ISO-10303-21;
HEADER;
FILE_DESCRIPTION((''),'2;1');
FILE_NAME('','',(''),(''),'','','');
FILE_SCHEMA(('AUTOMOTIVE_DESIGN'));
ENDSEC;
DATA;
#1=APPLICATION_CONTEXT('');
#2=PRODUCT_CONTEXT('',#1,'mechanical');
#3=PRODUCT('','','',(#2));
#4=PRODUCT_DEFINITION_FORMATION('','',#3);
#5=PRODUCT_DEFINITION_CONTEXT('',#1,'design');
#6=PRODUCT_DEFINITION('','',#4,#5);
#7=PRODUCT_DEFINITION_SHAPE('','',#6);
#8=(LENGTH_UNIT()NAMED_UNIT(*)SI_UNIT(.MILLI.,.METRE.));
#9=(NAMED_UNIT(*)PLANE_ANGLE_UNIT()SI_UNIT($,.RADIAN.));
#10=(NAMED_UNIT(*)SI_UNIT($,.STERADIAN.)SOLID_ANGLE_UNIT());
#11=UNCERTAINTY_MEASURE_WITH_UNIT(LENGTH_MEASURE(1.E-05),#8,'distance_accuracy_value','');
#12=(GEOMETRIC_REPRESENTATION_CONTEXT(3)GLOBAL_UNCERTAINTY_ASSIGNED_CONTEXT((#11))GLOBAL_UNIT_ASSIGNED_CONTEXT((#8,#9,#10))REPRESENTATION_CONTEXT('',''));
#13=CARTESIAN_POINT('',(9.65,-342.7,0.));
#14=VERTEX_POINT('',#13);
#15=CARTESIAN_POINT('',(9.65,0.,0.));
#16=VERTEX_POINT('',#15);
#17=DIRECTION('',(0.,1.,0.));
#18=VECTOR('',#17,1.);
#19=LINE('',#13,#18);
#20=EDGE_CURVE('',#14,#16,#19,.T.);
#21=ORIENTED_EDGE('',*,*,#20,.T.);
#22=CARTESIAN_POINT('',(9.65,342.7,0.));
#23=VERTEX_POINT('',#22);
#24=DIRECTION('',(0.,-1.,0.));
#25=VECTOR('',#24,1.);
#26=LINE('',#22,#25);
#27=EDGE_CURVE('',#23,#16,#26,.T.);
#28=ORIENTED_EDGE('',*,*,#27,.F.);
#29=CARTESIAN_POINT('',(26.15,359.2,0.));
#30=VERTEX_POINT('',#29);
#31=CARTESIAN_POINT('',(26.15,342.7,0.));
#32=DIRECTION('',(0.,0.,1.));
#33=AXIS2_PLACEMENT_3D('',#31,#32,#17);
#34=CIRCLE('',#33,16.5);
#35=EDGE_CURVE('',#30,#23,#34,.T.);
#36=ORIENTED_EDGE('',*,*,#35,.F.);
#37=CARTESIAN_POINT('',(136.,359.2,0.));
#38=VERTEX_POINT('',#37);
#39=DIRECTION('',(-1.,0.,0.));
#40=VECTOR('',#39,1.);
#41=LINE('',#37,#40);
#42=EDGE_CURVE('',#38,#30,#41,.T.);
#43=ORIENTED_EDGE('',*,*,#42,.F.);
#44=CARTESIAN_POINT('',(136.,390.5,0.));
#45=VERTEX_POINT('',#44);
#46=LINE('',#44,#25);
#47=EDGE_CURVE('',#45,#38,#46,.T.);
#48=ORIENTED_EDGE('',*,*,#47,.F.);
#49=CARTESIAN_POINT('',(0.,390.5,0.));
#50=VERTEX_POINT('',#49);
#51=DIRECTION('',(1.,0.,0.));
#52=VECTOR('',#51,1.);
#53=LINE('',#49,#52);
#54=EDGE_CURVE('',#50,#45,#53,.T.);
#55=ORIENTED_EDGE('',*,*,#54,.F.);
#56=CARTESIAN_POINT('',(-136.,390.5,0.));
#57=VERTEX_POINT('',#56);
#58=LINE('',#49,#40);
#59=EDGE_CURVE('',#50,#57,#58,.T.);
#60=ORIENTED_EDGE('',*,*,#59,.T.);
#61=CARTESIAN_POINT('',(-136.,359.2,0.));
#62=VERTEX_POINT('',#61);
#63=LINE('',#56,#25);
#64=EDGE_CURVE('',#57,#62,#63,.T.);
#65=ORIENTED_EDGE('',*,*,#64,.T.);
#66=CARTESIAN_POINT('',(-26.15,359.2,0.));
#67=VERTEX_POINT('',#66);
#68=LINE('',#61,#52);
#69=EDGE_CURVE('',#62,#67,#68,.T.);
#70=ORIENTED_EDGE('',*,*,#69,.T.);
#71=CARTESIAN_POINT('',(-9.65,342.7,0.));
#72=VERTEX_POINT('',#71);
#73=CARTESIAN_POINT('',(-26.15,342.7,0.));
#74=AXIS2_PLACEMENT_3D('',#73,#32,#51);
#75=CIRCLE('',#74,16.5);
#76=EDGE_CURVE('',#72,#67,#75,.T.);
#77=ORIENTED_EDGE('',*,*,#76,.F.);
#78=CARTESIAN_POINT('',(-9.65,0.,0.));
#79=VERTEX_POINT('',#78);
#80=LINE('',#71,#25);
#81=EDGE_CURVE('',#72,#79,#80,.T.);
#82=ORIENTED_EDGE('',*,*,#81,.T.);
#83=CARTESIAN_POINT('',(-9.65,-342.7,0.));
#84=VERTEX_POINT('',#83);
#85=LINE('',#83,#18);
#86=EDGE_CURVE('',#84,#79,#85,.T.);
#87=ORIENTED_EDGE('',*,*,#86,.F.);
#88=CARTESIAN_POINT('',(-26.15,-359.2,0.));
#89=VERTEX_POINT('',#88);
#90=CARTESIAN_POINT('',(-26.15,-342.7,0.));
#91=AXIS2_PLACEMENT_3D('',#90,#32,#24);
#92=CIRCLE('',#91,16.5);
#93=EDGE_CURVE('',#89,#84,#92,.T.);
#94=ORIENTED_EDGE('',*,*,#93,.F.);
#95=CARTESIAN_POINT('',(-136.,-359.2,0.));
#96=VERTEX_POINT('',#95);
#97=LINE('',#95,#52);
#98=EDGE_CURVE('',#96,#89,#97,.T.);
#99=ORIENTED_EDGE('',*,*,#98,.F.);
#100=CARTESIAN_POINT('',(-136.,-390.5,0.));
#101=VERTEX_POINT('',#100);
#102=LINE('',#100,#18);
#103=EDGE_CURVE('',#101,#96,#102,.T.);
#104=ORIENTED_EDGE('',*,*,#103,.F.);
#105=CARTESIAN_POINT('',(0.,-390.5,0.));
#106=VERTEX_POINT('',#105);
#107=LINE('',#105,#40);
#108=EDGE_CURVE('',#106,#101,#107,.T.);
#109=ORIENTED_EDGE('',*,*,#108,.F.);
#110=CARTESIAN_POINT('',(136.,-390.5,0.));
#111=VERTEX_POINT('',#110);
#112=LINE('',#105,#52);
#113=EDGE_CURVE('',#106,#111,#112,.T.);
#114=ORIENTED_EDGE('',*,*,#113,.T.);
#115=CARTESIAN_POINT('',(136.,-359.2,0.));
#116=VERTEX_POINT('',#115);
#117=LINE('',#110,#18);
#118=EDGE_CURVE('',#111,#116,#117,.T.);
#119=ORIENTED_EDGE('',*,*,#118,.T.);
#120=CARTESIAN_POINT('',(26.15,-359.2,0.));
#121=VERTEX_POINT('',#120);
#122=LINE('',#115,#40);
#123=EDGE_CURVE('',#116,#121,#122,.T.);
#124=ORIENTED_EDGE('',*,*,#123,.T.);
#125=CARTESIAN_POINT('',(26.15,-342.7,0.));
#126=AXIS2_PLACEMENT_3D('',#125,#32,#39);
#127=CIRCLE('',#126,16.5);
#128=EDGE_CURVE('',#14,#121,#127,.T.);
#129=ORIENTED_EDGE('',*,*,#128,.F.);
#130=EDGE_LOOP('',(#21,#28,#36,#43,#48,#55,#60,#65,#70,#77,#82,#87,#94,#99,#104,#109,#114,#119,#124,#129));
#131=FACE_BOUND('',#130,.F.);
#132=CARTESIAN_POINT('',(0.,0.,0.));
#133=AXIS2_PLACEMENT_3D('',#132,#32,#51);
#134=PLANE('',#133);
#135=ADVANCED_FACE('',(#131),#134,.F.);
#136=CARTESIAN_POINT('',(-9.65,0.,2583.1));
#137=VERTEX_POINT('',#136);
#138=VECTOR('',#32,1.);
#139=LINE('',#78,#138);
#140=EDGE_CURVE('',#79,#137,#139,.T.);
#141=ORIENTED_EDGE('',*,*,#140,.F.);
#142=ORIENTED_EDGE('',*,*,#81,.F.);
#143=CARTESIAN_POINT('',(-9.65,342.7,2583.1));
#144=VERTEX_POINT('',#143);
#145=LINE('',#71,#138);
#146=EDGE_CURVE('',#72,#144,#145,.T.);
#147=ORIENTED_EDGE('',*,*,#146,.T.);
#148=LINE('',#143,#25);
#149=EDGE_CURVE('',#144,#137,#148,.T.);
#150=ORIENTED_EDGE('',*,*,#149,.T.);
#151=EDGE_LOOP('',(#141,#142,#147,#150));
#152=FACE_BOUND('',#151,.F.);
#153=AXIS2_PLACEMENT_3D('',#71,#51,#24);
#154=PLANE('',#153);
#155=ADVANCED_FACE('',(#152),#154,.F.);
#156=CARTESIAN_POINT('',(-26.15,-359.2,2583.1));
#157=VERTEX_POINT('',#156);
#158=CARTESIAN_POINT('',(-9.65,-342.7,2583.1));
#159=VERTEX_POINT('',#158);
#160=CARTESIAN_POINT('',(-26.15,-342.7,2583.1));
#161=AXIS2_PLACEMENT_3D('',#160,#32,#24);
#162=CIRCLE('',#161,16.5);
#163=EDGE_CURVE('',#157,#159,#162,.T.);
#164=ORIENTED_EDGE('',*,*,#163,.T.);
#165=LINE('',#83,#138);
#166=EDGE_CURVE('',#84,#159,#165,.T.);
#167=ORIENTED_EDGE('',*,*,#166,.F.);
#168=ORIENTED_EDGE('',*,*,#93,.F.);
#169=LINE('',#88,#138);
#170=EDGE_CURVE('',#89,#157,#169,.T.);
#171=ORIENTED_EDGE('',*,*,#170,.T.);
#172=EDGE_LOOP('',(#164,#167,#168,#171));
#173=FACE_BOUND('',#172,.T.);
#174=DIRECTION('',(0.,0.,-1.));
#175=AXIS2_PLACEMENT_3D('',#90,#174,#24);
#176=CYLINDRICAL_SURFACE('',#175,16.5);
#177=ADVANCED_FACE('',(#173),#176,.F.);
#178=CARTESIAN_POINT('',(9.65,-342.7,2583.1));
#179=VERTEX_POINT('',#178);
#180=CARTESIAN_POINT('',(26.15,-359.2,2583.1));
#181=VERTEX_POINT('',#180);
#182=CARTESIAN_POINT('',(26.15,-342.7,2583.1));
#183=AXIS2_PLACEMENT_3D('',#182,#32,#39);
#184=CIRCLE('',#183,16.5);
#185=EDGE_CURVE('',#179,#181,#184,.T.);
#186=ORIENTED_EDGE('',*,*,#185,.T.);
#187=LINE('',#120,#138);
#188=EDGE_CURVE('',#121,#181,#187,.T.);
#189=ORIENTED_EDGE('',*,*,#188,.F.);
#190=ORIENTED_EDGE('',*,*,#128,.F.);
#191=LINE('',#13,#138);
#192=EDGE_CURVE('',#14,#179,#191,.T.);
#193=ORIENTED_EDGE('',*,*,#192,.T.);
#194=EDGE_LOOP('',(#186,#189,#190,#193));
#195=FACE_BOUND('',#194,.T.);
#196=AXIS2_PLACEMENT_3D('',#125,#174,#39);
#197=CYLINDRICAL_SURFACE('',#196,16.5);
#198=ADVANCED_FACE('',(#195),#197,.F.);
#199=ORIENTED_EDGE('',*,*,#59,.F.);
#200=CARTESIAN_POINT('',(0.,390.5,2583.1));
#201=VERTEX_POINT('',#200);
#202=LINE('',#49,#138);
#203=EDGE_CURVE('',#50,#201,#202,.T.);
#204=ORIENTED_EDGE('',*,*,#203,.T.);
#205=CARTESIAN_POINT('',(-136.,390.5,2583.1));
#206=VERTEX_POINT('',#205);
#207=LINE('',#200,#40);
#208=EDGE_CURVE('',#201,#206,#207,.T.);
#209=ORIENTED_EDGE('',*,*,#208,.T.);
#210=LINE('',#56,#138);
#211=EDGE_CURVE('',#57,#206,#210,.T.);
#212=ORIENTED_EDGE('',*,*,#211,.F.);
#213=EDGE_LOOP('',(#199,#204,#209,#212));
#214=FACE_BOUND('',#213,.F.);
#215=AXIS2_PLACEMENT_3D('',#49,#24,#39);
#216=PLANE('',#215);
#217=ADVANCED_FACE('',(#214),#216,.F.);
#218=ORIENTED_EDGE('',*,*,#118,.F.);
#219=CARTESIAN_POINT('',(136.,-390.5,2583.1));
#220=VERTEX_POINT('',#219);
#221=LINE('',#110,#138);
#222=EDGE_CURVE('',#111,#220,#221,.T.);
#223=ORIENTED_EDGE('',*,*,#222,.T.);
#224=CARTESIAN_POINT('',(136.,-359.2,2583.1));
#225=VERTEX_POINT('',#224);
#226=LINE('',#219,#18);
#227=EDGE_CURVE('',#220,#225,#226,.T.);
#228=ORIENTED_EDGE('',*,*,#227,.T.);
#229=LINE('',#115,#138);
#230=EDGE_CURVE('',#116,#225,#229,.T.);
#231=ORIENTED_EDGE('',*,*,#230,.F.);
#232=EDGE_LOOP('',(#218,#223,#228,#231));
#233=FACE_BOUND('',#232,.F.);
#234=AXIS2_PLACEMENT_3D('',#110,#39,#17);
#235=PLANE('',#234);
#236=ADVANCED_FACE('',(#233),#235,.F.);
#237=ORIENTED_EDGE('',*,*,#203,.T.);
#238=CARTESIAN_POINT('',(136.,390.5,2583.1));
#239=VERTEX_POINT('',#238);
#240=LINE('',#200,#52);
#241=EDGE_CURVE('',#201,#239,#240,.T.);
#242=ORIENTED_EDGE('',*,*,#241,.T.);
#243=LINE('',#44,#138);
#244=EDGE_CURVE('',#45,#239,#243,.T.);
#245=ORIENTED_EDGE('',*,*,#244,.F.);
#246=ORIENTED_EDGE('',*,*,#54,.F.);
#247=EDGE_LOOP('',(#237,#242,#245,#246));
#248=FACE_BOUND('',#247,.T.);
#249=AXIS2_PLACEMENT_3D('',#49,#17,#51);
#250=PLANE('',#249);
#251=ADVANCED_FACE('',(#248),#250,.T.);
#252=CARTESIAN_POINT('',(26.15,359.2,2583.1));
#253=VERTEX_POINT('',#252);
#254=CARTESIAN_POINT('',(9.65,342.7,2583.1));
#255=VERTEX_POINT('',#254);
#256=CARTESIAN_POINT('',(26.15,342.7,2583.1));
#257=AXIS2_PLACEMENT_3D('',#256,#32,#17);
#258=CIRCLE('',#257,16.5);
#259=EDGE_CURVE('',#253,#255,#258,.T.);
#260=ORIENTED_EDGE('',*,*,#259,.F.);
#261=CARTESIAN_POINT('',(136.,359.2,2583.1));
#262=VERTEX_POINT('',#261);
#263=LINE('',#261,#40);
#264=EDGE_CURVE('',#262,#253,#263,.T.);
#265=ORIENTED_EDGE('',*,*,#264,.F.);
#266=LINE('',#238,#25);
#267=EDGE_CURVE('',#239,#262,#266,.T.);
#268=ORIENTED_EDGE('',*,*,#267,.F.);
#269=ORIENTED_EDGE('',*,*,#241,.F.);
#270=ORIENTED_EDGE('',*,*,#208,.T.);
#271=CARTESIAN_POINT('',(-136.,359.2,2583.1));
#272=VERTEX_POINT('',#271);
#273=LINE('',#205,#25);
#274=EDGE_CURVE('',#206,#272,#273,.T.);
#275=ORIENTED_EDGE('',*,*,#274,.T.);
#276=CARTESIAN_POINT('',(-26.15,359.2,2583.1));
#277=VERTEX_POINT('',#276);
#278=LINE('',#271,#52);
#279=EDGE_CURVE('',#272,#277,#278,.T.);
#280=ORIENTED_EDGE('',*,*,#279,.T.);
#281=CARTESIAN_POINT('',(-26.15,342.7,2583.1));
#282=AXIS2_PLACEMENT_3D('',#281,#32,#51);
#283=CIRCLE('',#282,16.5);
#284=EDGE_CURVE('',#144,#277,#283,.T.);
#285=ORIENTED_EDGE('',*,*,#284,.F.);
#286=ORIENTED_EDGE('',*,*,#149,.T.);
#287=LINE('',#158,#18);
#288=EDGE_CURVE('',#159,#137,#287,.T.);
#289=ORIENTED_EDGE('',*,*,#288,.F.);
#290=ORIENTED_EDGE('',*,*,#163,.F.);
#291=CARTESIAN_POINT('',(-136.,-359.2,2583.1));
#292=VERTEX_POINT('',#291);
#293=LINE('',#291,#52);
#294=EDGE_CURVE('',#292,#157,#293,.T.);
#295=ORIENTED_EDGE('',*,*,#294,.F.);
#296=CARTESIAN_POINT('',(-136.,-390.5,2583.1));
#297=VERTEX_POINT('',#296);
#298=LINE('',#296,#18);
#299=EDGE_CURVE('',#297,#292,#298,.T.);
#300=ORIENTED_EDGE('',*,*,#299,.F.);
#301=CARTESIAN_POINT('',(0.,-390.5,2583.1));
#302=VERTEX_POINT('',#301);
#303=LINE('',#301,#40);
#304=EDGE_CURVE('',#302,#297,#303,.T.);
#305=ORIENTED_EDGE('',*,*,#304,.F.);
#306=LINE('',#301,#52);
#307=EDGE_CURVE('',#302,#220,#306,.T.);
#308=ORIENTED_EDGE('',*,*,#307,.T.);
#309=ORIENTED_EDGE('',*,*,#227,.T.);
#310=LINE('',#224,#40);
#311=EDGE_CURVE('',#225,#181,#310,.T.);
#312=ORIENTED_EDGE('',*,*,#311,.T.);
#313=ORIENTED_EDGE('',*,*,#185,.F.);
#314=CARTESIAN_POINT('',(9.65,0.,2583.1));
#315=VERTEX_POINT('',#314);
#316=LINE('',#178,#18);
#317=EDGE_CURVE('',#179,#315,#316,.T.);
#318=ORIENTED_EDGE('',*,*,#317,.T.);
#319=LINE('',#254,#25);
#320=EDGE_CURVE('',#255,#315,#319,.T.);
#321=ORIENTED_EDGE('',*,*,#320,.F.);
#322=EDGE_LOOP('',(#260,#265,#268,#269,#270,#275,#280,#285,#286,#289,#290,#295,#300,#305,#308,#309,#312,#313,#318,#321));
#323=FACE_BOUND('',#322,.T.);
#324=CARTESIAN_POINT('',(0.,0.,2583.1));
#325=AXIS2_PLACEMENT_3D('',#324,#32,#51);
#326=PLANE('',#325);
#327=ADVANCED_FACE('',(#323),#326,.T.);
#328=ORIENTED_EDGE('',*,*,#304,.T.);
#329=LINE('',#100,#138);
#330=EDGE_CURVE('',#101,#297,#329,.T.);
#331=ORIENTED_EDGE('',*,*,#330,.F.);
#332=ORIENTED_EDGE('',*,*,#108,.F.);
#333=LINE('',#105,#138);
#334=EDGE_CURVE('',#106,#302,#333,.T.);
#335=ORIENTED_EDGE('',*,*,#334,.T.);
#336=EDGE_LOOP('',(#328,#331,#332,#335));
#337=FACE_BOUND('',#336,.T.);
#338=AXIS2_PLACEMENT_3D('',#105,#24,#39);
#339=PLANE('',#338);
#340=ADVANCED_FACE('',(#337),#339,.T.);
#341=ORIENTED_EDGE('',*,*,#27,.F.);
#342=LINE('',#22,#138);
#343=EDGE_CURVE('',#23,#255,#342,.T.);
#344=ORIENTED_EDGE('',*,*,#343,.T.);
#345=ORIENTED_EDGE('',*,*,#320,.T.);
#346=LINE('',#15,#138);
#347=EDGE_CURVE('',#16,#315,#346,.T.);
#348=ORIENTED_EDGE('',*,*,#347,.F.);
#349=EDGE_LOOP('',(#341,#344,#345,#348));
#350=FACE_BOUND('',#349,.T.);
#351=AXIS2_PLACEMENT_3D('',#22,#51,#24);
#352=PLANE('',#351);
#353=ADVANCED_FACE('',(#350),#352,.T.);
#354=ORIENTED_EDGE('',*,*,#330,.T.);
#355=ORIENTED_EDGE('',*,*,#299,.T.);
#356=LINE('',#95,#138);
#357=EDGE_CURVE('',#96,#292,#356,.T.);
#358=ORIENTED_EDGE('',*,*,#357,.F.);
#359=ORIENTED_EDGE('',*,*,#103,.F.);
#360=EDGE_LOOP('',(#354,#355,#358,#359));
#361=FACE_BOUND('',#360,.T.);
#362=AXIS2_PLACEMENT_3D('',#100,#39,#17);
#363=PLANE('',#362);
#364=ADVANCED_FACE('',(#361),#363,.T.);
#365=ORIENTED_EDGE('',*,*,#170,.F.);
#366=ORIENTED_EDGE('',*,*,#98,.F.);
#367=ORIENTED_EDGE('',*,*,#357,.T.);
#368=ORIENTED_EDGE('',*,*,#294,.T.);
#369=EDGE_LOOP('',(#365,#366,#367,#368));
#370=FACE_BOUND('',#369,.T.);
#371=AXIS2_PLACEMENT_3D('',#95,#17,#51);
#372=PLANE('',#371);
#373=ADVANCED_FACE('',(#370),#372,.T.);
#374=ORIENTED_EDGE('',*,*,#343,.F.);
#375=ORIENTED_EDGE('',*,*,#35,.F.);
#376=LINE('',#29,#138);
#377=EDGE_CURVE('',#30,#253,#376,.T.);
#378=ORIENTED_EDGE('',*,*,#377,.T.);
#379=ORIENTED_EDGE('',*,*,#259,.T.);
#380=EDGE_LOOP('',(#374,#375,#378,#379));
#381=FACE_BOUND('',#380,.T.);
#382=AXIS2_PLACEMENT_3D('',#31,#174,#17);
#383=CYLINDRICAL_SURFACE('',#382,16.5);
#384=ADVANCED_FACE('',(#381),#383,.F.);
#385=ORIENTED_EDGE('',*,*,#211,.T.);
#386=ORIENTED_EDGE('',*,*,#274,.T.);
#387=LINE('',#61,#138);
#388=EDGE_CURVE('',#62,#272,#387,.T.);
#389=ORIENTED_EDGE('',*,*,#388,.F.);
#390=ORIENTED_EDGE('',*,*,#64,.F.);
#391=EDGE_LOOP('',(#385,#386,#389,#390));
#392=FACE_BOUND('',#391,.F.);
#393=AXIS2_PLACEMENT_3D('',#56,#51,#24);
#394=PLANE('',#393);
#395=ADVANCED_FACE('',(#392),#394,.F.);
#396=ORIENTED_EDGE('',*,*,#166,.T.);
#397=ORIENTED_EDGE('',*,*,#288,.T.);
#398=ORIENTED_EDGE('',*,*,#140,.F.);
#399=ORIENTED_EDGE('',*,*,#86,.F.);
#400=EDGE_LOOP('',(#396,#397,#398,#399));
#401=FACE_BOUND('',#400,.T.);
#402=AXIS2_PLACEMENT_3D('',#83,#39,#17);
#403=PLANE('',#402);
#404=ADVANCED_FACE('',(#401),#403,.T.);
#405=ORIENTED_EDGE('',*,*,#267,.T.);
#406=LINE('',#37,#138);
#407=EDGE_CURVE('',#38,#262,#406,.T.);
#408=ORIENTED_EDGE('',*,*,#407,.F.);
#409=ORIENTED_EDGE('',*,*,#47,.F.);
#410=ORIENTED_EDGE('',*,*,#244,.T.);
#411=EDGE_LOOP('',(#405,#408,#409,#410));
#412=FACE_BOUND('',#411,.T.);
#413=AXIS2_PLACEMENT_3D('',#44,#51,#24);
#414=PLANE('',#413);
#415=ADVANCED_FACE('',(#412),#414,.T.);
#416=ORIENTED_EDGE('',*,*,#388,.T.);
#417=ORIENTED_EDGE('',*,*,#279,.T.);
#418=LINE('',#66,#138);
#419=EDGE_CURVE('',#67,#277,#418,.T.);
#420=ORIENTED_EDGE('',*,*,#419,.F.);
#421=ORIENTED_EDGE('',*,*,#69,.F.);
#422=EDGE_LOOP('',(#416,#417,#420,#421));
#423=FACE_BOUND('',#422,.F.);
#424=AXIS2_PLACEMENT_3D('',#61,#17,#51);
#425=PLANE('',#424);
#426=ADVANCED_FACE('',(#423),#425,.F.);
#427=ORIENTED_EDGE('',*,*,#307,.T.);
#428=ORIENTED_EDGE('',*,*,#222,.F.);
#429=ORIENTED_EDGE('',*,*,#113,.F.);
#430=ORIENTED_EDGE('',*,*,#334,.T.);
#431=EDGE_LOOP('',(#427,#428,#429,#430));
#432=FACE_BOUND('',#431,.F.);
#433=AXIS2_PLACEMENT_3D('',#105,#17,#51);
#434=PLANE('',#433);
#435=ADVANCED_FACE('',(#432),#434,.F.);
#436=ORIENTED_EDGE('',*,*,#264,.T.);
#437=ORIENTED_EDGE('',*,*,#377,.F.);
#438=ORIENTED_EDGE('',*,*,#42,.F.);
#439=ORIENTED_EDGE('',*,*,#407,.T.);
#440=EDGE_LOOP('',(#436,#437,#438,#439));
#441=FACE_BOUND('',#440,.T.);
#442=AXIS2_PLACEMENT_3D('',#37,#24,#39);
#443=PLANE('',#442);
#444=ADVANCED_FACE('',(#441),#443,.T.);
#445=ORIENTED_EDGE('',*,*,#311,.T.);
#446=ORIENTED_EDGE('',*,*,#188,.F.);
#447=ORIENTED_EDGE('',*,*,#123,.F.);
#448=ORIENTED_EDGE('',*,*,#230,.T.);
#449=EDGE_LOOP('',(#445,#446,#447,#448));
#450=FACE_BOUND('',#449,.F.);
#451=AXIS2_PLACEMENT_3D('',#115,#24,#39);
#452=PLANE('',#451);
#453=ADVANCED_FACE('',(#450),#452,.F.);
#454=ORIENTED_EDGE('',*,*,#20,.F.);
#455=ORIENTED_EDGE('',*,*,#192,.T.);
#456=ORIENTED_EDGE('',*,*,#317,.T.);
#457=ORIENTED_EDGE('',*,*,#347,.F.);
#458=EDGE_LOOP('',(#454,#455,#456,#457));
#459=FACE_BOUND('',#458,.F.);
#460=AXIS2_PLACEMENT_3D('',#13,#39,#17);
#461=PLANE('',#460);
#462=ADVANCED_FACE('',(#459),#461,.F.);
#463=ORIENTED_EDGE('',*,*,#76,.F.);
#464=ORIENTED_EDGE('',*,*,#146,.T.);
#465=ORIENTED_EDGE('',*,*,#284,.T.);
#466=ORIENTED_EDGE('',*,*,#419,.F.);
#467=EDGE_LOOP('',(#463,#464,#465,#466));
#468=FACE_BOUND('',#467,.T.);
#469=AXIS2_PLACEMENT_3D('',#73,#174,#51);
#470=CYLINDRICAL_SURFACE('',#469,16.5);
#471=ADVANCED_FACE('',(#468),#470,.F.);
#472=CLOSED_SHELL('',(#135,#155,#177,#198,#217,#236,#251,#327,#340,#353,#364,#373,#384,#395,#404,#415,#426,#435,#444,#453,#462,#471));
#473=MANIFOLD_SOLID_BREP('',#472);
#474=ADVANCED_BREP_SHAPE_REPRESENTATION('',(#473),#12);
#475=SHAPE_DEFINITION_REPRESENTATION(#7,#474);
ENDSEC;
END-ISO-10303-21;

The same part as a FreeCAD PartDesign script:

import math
import FreeCAD as App
import Part
import Sketcher

V = App.Vector

doc = App.newDocument("Part")
body = doc.addObject("PartDesign::Body", "Body")

sketch1 = body.newObject("Sketcher::SketchObject", "Sketch")
sketch1.AttachmentSupport = (doc.getObject("XY_Plane"), [""])
sketch1.MapMode = "FlatFace"
sketch1.addGeometry(Part.LineSegment(V(-136, -359, 0), V(-136, -390, 0)), False)
sketch1.addGeometry(Part.LineSegment(V(-136, -390, 0), V(136, -390, 0)), False)
sketch1.addGeometry(Part.LineSegment(V(136, -390, 0), V(136, -359, 0)), False)
sketch1.addGeometry(Part.LineSegment(V(136, -359, 0), V(26, -359, 0)), False)
sketch1.addGeometry(Part.ArcOfCircle(Part.Circle(V(26, -343, 0), V(0, 0, 1), 16), math.radians(180), math.radians(270)), False)
sketch1.addGeometry(Part.LineSegment(V(10, -343, 0), V(10, 343, 0)), False)
sketch1.addGeometry(Part.ArcOfCircle(Part.Circle(V(26, 343, 0), V(0, 0, 1), 16), math.radians(90), math.radians(180)), False)
sketch1.addGeometry(Part.LineSegment(V(26, 359, 0), V(136, 359, 0)), False)
sketch1.addGeometry(Part.LineSegment(V(136, 359, 0), V(136, 390, 0)), False)
sketch1.addGeometry(Part.LineSegment(V(136, 390, 0), V(-136, 390, 0)), False)
sketch1.addGeometry(Part.LineSegment(V(-136, 390, 0), V(-136, 359, 0)), False)
sketch1.addGeometry(Part.LineSegment(V(-136, 359, 0), V(-26, 359, 0)), False)
sketch1.addGeometry(Part.ArcOfCircle(Part.Circle(V(-26, 343, 0), V(0, 0, 1), 16), math.radians(0), math.radians(90)), False)
sketch1.addGeometry(Part.LineSegment(V(-10, 343, 0), V(-10, -343, 0)), False)
sketch1.addGeometry(Part.ArcOfCircle(Part.Circle(V(-26, -343, 0), V(0, 0, 1), 16), math.radians(-90), math.radians(0)), False)
sketch1.addGeometry(Part.LineSegment(V(-26, -359, 0), V(-136, -359, 0)), False)
sketch1.addConstraint(Sketcher.Constraint("Coincident", 0, 2, 1, 1))
sketch1.addConstraint(Sketcher.Constraint("Coincident", 1, 2, 2, 1))
sketch1.addConstraint(Sketcher.Constraint("Coincident", 2, 2, 3, 1))
sketch1.addConstraint(Sketcher.Constraint("Tangent", 3, 2, 4, 2))
sketch1.addConstraint(Sketcher.Constraint("Tangent", 4, 1, 5, 1))
sketch1.addConstraint(Sketcher.Constraint("Tangent", 5, 2, 6, 2))
sketch1.addConstraint(Sketcher.Constraint("Tangent", 6, 1, 7, 1))
sketch1.addConstraint(Sketcher.Constraint("Coincident", 7, 2, 8, 1))
sketch1.addConstraint(Sketcher.Constraint("Coincident", 8, 2, 9, 1))
sketch1.addConstraint(Sketcher.Constraint("Coincident", 9, 2, 10, 1))
sketch1.addConstraint(Sketcher.Constraint("Coincident", 10, 2, 11, 1))
sketch1.addConstraint(Sketcher.Constraint("Tangent", 11, 2, 12, 2))
sketch1.addConstraint(Sketcher.Constraint("Tangent", 12, 1, 13, 1))
sketch1.addConstraint(Sketcher.Constraint("Tangent", 13, 2, 14, 2))
sketch1.addConstraint(Sketcher.Constraint("Tangent", 14, 1, 15, 1))
sketch1.addConstraint(Sketcher.Constraint("Coincident", 15, 2, 0, 1))
sketch1.addConstraint(Sketcher.Constraint("Vertical", 0))
sketch1.addConstraint(Sketcher.Constraint("Horizontal", 1))
sketch1.addConstraint(Sketcher.Constraint("Vertical", 2))
sketch1.addConstraint(Sketcher.Constraint("Horizontal", 3))
sketch1.addConstraint(Sketcher.Constraint("Vertical", 5))
sketch1.addConstraint(Sketcher.Constraint("Horizontal", 7))
sketch1.addConstraint(Sketcher.Constraint("Vertical", 8))
sketch1.addConstraint(Sketcher.Constraint("Horizontal", 9))
sketch1.addConstraint(Sketcher.Constraint("Vertical", 10))
sketch1.addConstraint(Sketcher.Constraint("Horizontal", 11))
sketch1.addConstraint(Sketcher.Constraint("Vertical", 13))
sketch1.addConstraint(Sketcher.Constraint("Horizontal", 15))
sketch1.addConstraint(Sketcher.Constraint("Equal", 4, 6))
sketch1.addConstraint(Sketcher.Constraint("Equal", 6, 12))
sketch1.addConstraint(Sketcher.Constraint("Equal", 12, 14))
sketch1.addConstraint(Sketcher.Constraint("Symmetric", 4, 3, 12, 3, -1, 1))
sketch1.addConstraint(Sketcher.Constraint("Symmetric", 0, 2, 8, 2, -1, 1))
sketch1.addConstraint(Sketcher.Constraint("Symmetric", 7, 2, 10, 2, -2))
sketch1.addConstraint(Sketcher.Constraint("Symmetric", 2, 2, 15, 2, -2))
sketch1.addConstraint(Sketcher.Constraint("Radius", 4, 16.5))
sketch1.addConstraint(Sketcher.Constraint("DistanceY", 0, 2, 0, 1, 31.3))
sketch1.addConstraint(Sketcher.Constraint("DistanceX", 0, 2, -1, 1, 136.0))
sketch1.addConstraint(Sketcher.Constraint("DistanceY", 0, 2, -1, 1, 390.5))
sketch1.addConstraint(Sketcher.Constraint("DistanceX", -1, 1, 4, 1, 9.65))
pad1 = body.newObject("PartDesign::Pad", "Pad")
pad1.Profile = sketch1
pad1.Length = 2583.1

doc.recompute()
